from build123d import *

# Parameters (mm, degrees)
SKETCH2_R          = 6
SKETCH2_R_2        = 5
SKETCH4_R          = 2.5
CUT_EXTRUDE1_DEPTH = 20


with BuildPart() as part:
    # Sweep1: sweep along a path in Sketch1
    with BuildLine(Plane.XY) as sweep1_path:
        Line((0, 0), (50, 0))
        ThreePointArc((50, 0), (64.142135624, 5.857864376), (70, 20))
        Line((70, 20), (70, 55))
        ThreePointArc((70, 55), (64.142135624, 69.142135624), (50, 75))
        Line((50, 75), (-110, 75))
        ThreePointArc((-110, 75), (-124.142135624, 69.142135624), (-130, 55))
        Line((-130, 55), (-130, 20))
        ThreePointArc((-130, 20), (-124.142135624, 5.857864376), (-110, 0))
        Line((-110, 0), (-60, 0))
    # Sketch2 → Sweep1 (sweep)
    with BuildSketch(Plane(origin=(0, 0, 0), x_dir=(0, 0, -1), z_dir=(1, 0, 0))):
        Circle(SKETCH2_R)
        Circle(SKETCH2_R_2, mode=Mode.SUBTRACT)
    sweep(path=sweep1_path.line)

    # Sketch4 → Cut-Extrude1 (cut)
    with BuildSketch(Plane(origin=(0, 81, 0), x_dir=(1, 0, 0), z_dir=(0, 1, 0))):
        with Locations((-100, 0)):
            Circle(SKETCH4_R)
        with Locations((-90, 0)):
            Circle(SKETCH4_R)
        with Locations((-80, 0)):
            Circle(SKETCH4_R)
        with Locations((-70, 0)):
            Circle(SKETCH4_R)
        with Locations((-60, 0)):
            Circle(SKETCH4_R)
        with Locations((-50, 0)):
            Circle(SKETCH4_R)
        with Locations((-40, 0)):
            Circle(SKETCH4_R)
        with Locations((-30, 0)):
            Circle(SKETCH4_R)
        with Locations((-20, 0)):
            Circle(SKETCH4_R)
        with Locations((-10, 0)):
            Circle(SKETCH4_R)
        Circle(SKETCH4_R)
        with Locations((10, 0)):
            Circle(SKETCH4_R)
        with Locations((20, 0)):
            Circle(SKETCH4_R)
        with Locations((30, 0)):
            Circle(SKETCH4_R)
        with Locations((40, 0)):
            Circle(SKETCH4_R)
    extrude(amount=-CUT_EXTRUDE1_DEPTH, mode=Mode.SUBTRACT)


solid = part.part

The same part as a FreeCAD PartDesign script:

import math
import FreeCAD as App
import Part
import Sketcher
Q = App.Units.Quantity

doc = App.newDocument("Part")
body = doc.addObject("PartDesign::Body", "Body")

sketch1 = body.newObject("Sketcher::SketchObject", "Sketch")
sketch1.AttachmentSupport = (doc.getObject("YZ_Plane"), [""])
sketch1.MapMode = "FlatFace"
sketch1.addGeometry([
    Part.Circle(App.Vector(0, 0, 0), App.Vector(0, 0, 1), 6),
    Part.Circle(App.Vector(0, 0, 0), App.Vector(0, 0, 1), 5),
], False)
sketch1.addConstraint([
    Sketcher.Constraint("Coincident", 0, 3, -1, 1),
    Sketcher.Constraint("Coincident", 1, 3, -1, 1),
    Sketcher.Constraint("Diameter", 0, Q("12 mm")),
    Sketcher.Constraint("Diameter", 1, Q("10 mm")),
])

sketch2 = body.newObject("Sketcher::SketchObject", "Sketch001")
sketch2.AttachmentSupport = (doc.getObject("XY_Plane"), [""])
sketch2.MapMode = "FlatFace"
sketch2.addGeometry([
    Part.LineSegment(App.Vector(0, 0, 0), App.Vector(50, 0, 0)),
    Part.ArcOfCircle(Part.Circle(App.Vector(50, 20, 0), App.Vector(0, 0, 1), 20), math.radians(-90), math.radians(0)),
    Part.LineSegment(App.Vector(70, 20, 0), App.Vector(70, 55, 0)),
    Part.ArcOfCircle(Part.Circle(App.Vector(50, 55, 0), App.Vector(0, 0, 1), 20), math.radians(0), math.radians(90)),
    Part.LineSegment(App.Vector(50, 75, 0), App.Vector(-110, 75, 0)),
    Part.ArcOfCircle(Part.Circle(App.Vector(-110, 55, 0), App.Vector(0, 0, 1), 20), math.radians(90), math.radians(180)),
    Part.LineSegment(App.Vector(-130, 55, 0), App.Vector(-130, 20, 0)),
    Part.ArcOfCircle(Part.Circle(App.Vector(-110, 20, 0), App.Vector(0, 0, 1), 20), math.radians(180), math.radians(270)),
    Part.LineSegment(App.Vector(-110, 0, 0), App.Vector(-60, 0, 0)),
], False)
sketch2.addConstraint([
    Sketcher.Constraint("Tangent", 0, 2, 1, 1),
    Sketcher.Constraint("Tangent", 1, 2, 2, 1),
    Sketcher.Constraint("Tangent", 2, 2, 3, 1),
    Sketcher.Constraint("Tangent", 3, 2, 4, 1),
    Sketcher.Constraint("Tangent", 4, 2, 5, 1),
    Sketcher.Constraint("Tangent", 5, 2, 6, 1),
    Sketcher.Constraint("Tangent", 6, 2, 7, 1),
    Sketcher.Constraint("Tangent", 7, 2, 8, 1),
    Sketcher.Constraint("Horizontal", 0),
    Sketcher.Constraint("Vertical", 2),
    Sketcher.Constraint("Horizontal", 4),
    Sketcher.Constraint("Vertical", 6),
    Sketcher.Constraint("Horizontal", 8),
    Sketcher.Constraint("Coincident", 0, 1, -1, 1),
    Sketcher.Constraint("Equal", 1, 3),
    Sketcher.Constraint("Equal", 3, 5),
    Sketcher.Constraint("Equal", 5, 7),
    Sketcher.Constraint("PointOnObject", 7, 2, -1),
    Sketcher.Constraint("Equal", 0, 8),
    Sketcher.Constraint("Radius", 1, Q("20 mm")),
    Sketcher.Constraint("DistanceX", 0, 1, 0, 2, Q("50 mm")),
    Sketcher.Constraint("DistanceX", 4, 2, 4, 1, Q("160 mm")),
    Sketcher.Constraint("DistanceY", 2, 1, 2, 2, Q("35 mm")),
])
doc.recompute()

additivepipe = body.newObject("PartDesign::AdditivePipe", "AdditivePipe")
additivepipe.Profile = sketch1
additivepipe.Spine = (sketch2, ["Edge1", "Edge2", "Edge3", "Edge4", "Edge5", "Edge6", "Edge7", "Edge8", "Edge9"])

sketch3 = body.newObject("Sketcher::SketchObject", "Sketch002")
sketch3.AttachmentSupport = (doc.getObject("XZ_Plane"), [""])
sketch3.MapMode = "FlatFace"
sketch3.AttachmentOffset = App.Placement(App.Vector(0, 0, -81), App.Rotation())
sketch3.addGeometry([
    Part.Circle(App.Vector(-100, 0, 0), App.Vector(0, 0, 1), 2.5),
    Part.Circle(App.Vector(-90, 0, 0), App.Vector(0, 0, 1), 2.5),
    Part.Circle(App.Vector(-80, 0, 0), App.Vector(0, 0, 1), 2.5),
    Part.Circle(App.Vector(-70, 0, 0), App.Vector(0, 0, 1), 2.5),
    Part.Circle(App.Vector(-60, 0, 0), App.Vector(0, 0, 1), 2.5),
    Part.Circle(App.Vector(-50, 0, 0), App.Vector(0, 0, 1), 2.5),
    Part.Circle(App.Vector(-40, 0, 0), App.Vector(0, 0, 1), 2.5),
    Part.Circle(App.Vector(-30, 0, 0), App.Vector(0, 0, 1), 2.5),
    Part.Circle(App.Vector(-20, 0, 0), App.Vector(0, 0, 1), 2.5),
    Part.Circle(App.Vector(-10, 0, 0), App.Vector(0, 0, 1), 2.5),
    Part.Circle(App.Vector(0, 0, 0), App.Vector(0, 0, 1), 2.5),
    Part.Circle(App.Vector(10, 0, 0), App.Vector(0, 0, 1), 2.5),
    Part.Circle(App.Vector(20, 0, 0), App.Vector(0, 0, 1), 2.5),
    Part.Circle(App.Vector(30, 0, 0), App.Vector(0, 0, 1), 2.5),
    Part.Circle(App.Vector(40, 0, 0), App.Vector(0, 0, 1), 2.5),
], False)
sketch3.addConstraint([
    Sketcher.Constraint("Coincident", 10, 3, -1, 1),
    Sketcher.Constraint("Equal", 0, 1),
    Sketcher.Constraint("Equal", 1, 2),
    Sketcher.Constraint("Equal", 2, 3),
    Sketcher.Constraint("Equal", 3, 4),
    Sketcher.Constraint("Equal", 4, 5),
    Sketcher.Constraint("Equal", 5, 6),
    Sketcher.Constraint("Equal", 6, 7),
    Sketcher.Constraint("Equal", 7, 8),
    Sketcher.Constraint("Equal", 8, 9),
    Sketcher.Constraint("Equal", 9, 10),
    Sketcher.Constraint("Equal", 10, 11),
    Sketcher.Constraint("Equal", 11, 12),
    Sketcher.Constraint("Equal", 12, 13),
    Sketcher.Constraint("Equal", 13, 14),
    Sketcher.Constraint("Symmetric", 9, 3, 11, 3, -1, 1),
    Sketcher.Constraint("Symmetric", 8, 3, 12, 3, -1, 1),
    Sketcher.Constraint("Symmetric", 7, 3, 13, 3, -1, 1),
    Sketcher.Constraint("Symmetric", 6, 3, 14, 3, -1, 1),
    Sketcher.Constraint("PointOnObject", 0, 3, -1),
    Sketcher.Constraint("PointOnObject", 1, 3, -1),
    Sketcher.Constraint("PointOnObject", 2, 3, -1),
    Sketcher.Constraint("PointOnObject", 3, 3, -1),
    Sketcher.Constraint("PointOnObject", 4, 3, -1),
    Sketcher.Constraint("PointOnObject", 5, 3, -1),
    Sketcher.Constraint("PointOnObject", 6, 3, -1),
    Sketcher.Constraint("PointOnObject", 7, 3, -1),
    Sketcher.Constraint("PointOnObject", 8, 3, -1),
    Sketcher.Constraint("PointOnObject", 9, 3, -1),
    Sketcher.Constraint("Diameter", 0, Q("5 mm")),
    Sketcher.Constraint("DistanceX", 0, 3, -1, 1, Q("100 mm")),
    Sketcher.Constraint("DistanceX", 1, 3, -1, 1, Q("90 mm")),
    Sketcher.Constraint("DistanceX", 2, 3, -1, 1, Q("80 mm")),
    Sketcher.Constraint("DistanceX", 3, 3, -1, 1, Q("70 mm")),
    Sketcher.Constraint("DistanceX", 4, 3, -1, 1, Q("60 mm")),
    Sketcher.Constraint("DistanceX", 5, 3, -1, 1, Q("50 mm")),
    Sketcher.Constraint("DistanceX", 6, 3, -1, 1, Q("40 mm")),
    Sketcher.Constraint("DistanceX", 7, 3, -1, 1, Q("30 mm")),
    Sketcher.Constraint("DistanceX", 8, 3, -1, 1, Q("20 mm")),
    Sketcher.Constraint("DistanceX", 9, 3, -1, 1, Q("10 mm")),
])
pocket1 = body.newObject("PartDesign::Pocket", "Pocket")
pocket1.Profile = sketch3
pocket1.Length = 20
pocket1.Reversed = True

doc.recompute()
